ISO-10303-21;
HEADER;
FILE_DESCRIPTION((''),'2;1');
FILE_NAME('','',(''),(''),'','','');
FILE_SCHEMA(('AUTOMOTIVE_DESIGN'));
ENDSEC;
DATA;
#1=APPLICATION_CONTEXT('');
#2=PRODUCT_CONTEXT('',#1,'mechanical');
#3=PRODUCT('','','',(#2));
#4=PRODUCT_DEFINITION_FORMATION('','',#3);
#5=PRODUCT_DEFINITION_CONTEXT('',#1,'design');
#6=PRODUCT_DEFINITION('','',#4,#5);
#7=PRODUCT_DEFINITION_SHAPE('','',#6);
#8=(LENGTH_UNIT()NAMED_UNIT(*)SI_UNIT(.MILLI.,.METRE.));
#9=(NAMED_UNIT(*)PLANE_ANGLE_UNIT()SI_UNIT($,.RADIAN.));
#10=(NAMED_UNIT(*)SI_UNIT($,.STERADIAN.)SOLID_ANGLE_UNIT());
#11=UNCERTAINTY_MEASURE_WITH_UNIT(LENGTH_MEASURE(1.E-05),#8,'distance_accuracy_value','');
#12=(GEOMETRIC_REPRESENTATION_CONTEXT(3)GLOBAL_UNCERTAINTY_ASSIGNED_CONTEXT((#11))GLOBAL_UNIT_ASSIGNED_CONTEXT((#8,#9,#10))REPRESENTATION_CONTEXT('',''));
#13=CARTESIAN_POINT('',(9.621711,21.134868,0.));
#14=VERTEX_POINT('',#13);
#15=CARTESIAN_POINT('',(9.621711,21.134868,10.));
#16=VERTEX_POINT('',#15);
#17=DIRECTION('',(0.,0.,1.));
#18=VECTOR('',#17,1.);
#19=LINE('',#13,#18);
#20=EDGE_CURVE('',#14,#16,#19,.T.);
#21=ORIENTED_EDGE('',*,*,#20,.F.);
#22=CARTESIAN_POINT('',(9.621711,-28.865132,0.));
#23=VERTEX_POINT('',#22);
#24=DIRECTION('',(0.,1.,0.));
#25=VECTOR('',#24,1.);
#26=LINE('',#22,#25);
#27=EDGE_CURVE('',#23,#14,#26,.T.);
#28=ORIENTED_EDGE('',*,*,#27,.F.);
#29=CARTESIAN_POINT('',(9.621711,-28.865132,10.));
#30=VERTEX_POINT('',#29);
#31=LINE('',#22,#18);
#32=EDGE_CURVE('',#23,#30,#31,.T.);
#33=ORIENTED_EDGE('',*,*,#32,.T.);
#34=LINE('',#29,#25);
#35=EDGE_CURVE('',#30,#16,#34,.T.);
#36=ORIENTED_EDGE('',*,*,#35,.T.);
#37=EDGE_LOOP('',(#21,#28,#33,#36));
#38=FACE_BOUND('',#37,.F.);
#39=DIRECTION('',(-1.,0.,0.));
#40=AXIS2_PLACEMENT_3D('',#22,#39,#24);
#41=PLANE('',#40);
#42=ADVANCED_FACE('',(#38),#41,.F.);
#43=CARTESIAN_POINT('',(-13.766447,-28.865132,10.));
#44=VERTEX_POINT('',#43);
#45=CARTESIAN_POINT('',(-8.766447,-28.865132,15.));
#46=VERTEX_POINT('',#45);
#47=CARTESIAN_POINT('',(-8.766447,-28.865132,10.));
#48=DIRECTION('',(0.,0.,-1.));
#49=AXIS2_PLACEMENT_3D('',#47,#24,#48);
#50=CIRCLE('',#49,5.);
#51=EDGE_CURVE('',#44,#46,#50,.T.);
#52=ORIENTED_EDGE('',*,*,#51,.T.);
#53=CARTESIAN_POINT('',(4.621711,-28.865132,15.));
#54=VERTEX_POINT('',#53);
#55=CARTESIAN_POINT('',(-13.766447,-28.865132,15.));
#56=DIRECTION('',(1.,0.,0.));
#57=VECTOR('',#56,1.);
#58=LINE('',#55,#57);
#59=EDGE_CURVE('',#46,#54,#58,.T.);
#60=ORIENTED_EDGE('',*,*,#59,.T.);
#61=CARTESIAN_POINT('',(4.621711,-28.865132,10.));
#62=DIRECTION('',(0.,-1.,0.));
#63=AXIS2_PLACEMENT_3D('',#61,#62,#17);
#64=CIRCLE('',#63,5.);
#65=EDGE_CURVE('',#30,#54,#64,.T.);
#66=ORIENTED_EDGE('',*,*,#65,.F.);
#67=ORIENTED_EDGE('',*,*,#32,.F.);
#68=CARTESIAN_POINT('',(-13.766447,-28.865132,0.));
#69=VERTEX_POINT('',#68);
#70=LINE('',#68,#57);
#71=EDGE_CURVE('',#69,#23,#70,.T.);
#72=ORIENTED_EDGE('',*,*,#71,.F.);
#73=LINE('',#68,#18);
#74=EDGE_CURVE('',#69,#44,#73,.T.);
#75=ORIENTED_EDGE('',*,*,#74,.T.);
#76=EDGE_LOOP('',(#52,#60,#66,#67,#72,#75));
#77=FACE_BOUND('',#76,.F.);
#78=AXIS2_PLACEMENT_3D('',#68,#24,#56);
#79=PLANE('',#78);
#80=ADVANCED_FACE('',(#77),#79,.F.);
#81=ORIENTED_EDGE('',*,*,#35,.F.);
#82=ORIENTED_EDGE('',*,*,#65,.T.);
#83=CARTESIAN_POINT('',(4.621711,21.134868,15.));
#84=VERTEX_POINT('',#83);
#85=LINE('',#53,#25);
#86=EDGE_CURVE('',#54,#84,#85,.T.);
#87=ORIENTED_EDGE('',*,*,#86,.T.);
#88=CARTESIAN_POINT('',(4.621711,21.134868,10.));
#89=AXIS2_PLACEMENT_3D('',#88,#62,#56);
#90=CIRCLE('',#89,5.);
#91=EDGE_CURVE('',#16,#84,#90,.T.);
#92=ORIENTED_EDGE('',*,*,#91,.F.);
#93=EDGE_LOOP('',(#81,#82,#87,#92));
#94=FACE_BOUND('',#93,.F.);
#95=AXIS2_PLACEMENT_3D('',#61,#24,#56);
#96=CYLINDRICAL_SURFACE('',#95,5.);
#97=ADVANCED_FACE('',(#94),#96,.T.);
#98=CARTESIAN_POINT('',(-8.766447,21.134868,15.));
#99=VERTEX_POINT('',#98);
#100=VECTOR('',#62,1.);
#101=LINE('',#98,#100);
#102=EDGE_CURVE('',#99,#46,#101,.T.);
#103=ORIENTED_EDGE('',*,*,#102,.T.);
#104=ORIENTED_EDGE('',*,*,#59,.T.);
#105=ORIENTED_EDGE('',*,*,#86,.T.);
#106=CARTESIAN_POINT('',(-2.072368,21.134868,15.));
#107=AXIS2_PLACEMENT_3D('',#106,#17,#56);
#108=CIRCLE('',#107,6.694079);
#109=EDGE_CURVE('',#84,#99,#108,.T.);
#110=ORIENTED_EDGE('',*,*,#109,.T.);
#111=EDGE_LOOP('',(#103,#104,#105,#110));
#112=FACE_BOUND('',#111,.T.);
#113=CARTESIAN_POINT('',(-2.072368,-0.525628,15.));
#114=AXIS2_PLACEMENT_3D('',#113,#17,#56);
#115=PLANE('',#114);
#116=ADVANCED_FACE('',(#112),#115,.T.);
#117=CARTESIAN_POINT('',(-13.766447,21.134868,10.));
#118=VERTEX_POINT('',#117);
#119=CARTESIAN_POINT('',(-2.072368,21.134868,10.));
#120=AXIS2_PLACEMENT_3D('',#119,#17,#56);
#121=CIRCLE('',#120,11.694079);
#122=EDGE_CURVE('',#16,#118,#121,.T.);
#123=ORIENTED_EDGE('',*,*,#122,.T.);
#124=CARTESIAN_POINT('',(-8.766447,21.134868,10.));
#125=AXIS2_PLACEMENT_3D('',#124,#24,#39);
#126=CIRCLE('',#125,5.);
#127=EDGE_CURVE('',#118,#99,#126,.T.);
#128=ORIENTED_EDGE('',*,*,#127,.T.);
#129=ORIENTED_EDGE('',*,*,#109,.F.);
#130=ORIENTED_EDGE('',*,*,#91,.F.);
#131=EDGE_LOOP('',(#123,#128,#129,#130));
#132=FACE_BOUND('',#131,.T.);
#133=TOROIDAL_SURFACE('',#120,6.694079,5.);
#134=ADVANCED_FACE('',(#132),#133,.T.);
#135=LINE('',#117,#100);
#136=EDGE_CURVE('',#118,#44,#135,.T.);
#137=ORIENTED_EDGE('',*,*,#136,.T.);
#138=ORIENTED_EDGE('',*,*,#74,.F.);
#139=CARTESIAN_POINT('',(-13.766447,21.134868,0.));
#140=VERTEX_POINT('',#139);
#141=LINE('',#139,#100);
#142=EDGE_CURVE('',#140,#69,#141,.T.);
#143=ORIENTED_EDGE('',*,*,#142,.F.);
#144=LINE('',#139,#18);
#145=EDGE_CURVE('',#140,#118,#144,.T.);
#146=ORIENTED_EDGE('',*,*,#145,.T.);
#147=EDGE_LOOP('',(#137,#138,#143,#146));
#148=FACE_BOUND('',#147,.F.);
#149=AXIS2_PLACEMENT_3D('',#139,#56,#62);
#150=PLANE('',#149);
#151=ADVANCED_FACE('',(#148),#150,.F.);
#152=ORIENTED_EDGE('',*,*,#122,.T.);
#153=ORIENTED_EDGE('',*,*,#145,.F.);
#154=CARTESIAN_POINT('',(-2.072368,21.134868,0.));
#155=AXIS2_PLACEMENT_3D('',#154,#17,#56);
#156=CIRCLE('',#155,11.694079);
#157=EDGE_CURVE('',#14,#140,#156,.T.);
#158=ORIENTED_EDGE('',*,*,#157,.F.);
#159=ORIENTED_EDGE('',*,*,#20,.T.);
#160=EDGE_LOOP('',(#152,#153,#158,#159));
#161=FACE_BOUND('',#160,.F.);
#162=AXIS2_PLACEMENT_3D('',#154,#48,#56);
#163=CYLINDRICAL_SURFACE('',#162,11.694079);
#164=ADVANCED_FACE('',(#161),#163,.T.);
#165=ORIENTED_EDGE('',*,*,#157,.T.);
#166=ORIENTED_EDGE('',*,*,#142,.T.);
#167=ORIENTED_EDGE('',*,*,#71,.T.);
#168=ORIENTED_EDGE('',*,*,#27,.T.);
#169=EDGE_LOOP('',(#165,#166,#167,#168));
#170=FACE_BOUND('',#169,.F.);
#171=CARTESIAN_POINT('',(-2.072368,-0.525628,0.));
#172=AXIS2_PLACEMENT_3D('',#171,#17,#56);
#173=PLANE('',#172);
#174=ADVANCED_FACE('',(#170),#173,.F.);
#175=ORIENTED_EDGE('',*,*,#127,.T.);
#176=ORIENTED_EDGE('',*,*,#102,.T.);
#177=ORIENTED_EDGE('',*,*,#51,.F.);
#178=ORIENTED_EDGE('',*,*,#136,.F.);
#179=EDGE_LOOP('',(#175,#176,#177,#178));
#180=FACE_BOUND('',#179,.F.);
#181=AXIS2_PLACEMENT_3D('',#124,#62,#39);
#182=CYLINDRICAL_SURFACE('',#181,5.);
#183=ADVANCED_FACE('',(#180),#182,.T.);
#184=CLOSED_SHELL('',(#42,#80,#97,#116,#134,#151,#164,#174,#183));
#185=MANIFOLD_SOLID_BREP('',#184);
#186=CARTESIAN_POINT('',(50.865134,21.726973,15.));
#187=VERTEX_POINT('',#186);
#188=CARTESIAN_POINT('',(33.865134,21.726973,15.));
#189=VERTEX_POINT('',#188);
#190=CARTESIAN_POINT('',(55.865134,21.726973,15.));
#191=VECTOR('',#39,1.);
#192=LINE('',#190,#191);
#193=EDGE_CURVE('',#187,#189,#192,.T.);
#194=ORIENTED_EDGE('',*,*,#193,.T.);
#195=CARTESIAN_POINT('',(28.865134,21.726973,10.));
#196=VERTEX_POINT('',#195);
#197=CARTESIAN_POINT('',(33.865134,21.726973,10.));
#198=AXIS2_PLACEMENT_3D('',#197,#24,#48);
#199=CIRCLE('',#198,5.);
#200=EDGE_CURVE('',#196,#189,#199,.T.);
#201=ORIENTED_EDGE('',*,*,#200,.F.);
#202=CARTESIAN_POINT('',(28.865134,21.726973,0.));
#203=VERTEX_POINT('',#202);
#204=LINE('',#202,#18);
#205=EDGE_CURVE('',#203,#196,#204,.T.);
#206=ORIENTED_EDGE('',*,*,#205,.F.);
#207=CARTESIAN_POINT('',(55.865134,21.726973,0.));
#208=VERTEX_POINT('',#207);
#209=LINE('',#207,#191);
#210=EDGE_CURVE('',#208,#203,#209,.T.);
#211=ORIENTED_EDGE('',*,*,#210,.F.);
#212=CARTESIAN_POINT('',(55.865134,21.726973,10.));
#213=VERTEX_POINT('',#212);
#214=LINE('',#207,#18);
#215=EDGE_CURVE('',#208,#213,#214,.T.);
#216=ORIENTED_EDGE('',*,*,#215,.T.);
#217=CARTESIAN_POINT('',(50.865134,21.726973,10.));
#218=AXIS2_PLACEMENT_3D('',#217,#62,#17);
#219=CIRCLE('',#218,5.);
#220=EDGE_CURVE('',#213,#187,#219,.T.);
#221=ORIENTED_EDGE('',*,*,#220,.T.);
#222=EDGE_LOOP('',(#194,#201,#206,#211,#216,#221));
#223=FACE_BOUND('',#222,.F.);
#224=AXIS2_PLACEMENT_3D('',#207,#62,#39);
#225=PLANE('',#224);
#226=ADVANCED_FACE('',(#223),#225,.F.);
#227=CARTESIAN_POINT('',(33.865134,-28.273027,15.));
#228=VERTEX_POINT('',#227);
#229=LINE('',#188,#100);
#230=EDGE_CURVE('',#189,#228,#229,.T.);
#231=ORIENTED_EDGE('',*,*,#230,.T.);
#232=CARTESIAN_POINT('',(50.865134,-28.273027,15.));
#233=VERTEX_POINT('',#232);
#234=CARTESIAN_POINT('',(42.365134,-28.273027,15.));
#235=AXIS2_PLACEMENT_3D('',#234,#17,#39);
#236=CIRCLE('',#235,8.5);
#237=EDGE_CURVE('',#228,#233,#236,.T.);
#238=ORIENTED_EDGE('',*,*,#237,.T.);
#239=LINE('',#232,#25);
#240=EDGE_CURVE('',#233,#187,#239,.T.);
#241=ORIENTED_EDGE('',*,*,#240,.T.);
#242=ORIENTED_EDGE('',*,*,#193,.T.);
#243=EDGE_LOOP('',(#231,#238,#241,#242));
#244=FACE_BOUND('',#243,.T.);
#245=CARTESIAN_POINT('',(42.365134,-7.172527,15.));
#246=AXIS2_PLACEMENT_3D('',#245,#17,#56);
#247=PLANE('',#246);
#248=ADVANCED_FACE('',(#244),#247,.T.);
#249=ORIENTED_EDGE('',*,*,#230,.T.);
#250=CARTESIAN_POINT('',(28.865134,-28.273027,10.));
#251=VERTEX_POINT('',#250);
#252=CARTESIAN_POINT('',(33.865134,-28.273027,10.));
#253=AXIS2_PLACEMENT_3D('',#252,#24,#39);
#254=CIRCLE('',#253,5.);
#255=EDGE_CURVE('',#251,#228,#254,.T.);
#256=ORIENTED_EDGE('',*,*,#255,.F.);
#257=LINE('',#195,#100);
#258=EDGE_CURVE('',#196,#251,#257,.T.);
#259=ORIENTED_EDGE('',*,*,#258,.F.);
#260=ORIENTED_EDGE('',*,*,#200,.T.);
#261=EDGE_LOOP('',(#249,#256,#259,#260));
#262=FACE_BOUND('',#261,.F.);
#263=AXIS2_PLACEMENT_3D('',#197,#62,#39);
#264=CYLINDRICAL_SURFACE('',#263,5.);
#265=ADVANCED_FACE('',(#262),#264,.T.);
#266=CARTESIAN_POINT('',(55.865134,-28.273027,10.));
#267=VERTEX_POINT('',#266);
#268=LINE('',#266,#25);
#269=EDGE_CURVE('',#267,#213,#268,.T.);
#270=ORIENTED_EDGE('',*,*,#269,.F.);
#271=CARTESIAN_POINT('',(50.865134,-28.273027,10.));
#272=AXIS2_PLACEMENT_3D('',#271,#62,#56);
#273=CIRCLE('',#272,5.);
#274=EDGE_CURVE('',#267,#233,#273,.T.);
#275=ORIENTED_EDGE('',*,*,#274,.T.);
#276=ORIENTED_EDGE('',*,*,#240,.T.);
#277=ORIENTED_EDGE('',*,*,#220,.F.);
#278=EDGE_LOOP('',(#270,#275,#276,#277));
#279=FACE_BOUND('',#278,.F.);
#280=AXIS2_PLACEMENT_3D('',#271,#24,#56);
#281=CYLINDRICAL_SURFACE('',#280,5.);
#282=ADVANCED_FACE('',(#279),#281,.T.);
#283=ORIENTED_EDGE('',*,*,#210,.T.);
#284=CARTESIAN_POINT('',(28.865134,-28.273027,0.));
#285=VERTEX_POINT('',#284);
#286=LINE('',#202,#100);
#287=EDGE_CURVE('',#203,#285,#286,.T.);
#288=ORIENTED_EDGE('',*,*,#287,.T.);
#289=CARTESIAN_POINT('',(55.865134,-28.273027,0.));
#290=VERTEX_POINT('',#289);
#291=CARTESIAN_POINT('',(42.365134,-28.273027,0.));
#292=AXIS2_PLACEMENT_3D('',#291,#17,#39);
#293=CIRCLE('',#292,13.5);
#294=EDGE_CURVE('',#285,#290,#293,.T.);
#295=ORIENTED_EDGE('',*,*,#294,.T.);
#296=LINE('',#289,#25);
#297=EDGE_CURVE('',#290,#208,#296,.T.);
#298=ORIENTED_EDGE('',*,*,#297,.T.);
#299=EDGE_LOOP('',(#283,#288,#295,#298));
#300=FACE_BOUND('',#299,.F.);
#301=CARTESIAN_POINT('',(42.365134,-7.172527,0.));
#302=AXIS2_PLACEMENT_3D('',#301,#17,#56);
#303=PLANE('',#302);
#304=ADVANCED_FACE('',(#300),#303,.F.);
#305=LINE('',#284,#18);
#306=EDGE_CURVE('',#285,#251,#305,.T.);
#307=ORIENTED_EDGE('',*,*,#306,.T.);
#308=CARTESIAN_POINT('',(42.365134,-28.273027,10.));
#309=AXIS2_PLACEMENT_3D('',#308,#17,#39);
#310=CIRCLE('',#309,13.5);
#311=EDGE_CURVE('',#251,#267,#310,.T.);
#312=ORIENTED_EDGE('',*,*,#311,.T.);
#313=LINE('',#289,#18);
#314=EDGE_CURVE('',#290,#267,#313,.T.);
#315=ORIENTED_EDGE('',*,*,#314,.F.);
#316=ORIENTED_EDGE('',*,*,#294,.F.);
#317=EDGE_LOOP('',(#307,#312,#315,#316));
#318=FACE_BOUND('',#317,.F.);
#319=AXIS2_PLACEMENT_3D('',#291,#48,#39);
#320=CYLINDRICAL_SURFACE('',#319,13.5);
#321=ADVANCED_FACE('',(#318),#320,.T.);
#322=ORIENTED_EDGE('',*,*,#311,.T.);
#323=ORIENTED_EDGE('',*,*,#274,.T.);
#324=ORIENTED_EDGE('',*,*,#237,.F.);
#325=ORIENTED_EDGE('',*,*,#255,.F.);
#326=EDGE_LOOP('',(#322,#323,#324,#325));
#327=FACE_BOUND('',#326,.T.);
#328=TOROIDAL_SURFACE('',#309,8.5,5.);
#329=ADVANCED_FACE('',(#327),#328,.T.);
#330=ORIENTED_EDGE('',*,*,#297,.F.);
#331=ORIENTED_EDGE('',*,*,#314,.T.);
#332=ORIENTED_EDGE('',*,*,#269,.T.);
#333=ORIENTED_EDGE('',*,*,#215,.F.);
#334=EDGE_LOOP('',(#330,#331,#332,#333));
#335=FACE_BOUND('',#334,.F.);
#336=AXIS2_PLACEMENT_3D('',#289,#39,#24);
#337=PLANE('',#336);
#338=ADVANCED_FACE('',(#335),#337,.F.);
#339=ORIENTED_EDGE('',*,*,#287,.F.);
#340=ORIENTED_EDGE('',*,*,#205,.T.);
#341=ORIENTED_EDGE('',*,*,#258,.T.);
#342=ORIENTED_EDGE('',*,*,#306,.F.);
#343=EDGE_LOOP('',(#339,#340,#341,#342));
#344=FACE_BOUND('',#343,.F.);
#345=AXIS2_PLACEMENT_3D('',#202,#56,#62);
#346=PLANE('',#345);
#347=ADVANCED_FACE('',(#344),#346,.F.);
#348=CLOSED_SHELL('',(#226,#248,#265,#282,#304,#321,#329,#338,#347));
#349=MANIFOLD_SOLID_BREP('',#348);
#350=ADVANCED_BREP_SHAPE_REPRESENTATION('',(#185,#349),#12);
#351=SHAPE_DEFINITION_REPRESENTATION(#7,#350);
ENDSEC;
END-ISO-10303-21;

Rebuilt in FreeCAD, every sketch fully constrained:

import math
import FreeCAD as App
import Part
import Sketcher

V = App.Vector
Q = App.Units.Quantity


def edges_at(feature, points):
    """Names of the edges that pass closest to the given points."""
    edges = feature.Shape.Edges
    near = lambda p: min(range(len(edges)), key=lambda i: edges[i].distToShape(Part.Vertex(*p))[0])
    return sorted({f"Edge{near(p) + 1}" for p in points})

doc = App.newDocument("Part")
body = doc.addObject("PartDesign::Body", "Body")

sketch1 = doc.addObject("Sketcher::SketchObject", "Sketch")
body.addObject(sketch1)
sketch1.AttachmentSupport = (doc.XY_Plane, [""])
sketch1.MapMode = "FlatFace"
sketch1.addGeometry(Part.ArcOfCircle(Part.Circle(V(-2, 21, 0), V(0, 0, 1), 12), math.radians(0), math.radians(180)), False)
sketch1.addGeometry(Part.LineSegment(V(-14, 21, 0), V(-14, -29, 0)), False)
sketch1.addGeometry(Part.LineSegment(V(-14, -29, 0), V(10, -29, 0)), False)
sketch1.addGeometry(Part.LineSegment(V(10, -29, 0), V(10, 21, 0)), False)
sketch1.addConstraint(Sketcher.Constraint("Tangent", 0, 2, 1, 1))
sketch1.addConstraint(Sketcher.Constraint("Coincident", 1, 2, 2, 1))
sketch1.addConstraint(Sketcher.Constraint("Coincident", 2, 2, 3, 1))
sketch1.addConstraint(Sketcher.Constraint("Tangent", 3, 2, 0, 1))
sketch1.addConstraint(Sketcher.Constraint("Vertical", 1))
sketch1.addConstraint(Sketcher.Constraint("Horizontal", 2))
sketch1.addConstraint(Sketcher.Constraint("Vertical", 3))
sketch1.addConstraint(Sketcher.Constraint("DistanceY", 1, 2, 1, 1, Q("50 mm")))
sketch1.addConstraint(Sketcher.Constraint("Radius", 0, Q("11.694079 mm")))
sketch1.addConstraint(Sketcher.Constraint("DistanceX", 0, 3, -1, 1, Q("2.072368 mm")))
sketch1.addConstraint(Sketcher.Constraint("DistanceY", -1, 1, 0, 3, Q("21.134868 mm")))
pad1 = doc.addObject("PartDesign::Pad", "Pad")
body.addObject(pad1)
pad1.Profile = sketch1
pad1.Length = 15
doc.recompute()

fillet = doc.addObject("PartDesign::Fillet", "Fillet")
body.addObject(fillet)
fillet.Base = (pad1, edges_at(pad1, [(-13.766, -3.865, 15)]))
fillet.Radius = 5
body2 = doc.addObject("PartDesign::Body", "Body001")

sketch2 = doc.addObject("Sketcher::SketchObject", "Sketch001")
body2.addObject(sketch2)
sketch2.AttachmentSupport = (doc.getObject("XY_Plane001"), [""])
sketch2.MapMode = "FlatFace"
sketch2.addGeometry(Part.LineSegment(V(29, 22, 0), V(29, -28, 0)), False)
sketch2.addGeometry(Part.ArcOfCircle(Part.Circle(V(42, -28, 0), V(0, 0, 1), 14), math.radians(180), math.radians(360)), False)
sketch2.addGeometry(Part.LineSegment(V(56, -28, 0), V(56, 22, 0)), False)
sketch2.addGeometry(Part.LineSegment(V(56, 22, 0), V(29, 22, 0)), False)
sketch2.addConstraint(Sketcher.Constraint("Tangent", 0, 2, 1, 1))
sketch2.addConstraint(Sketcher.Constraint("Tangent", 1, 2, 2, 1))
sketch2.addConstraint(Sketcher.Constraint("Coincident", 2, 2, 3, 1))
sketch2.addConstraint(Sketcher.Constraint("Coincident", 3, 2, 0, 1))
sketch2.addConstraint(Sketcher.Constraint("Vertical", 0))
sketch2.addConstraint(Sketcher.Constraint("Vertical", 2))
sketch2.addConstraint(Sketcher.Constraint("Horizontal", 3))
sketch2.addConstraint(Sketcher.Constraint("Radius", 1, Q("13.5 mm")))
sketch2.addConstraint(Sketcher.Constraint("DistanceY", 0, 2, 0, 1, Q("50 mm")))
sketch2.addConstraint(Sketcher.Constraint("DistanceX", -1, 1, 1, 3, Q("42.365134 mm")))
sketch2.addConstraint(Sketcher.Constraint("DistanceY", 1, 3, -1, 1, Q("28.273027 mm")))
pad2 = doc.addObject("PartDesign::Pad", "Pad001")
body2.addObject(pad2)
pad2.Profile = sketch2
pad2.Length = 15
doc.recompute()

fillet2 = doc.addObject("PartDesign::Fillet", "Fillet001")
body2.addObject(fillet2)
fillet2.Base = (pad2, edges_at(pad2, [(28.865, -3.273, 15)]))
fillet2.Radius = 5

doc.recompute()
